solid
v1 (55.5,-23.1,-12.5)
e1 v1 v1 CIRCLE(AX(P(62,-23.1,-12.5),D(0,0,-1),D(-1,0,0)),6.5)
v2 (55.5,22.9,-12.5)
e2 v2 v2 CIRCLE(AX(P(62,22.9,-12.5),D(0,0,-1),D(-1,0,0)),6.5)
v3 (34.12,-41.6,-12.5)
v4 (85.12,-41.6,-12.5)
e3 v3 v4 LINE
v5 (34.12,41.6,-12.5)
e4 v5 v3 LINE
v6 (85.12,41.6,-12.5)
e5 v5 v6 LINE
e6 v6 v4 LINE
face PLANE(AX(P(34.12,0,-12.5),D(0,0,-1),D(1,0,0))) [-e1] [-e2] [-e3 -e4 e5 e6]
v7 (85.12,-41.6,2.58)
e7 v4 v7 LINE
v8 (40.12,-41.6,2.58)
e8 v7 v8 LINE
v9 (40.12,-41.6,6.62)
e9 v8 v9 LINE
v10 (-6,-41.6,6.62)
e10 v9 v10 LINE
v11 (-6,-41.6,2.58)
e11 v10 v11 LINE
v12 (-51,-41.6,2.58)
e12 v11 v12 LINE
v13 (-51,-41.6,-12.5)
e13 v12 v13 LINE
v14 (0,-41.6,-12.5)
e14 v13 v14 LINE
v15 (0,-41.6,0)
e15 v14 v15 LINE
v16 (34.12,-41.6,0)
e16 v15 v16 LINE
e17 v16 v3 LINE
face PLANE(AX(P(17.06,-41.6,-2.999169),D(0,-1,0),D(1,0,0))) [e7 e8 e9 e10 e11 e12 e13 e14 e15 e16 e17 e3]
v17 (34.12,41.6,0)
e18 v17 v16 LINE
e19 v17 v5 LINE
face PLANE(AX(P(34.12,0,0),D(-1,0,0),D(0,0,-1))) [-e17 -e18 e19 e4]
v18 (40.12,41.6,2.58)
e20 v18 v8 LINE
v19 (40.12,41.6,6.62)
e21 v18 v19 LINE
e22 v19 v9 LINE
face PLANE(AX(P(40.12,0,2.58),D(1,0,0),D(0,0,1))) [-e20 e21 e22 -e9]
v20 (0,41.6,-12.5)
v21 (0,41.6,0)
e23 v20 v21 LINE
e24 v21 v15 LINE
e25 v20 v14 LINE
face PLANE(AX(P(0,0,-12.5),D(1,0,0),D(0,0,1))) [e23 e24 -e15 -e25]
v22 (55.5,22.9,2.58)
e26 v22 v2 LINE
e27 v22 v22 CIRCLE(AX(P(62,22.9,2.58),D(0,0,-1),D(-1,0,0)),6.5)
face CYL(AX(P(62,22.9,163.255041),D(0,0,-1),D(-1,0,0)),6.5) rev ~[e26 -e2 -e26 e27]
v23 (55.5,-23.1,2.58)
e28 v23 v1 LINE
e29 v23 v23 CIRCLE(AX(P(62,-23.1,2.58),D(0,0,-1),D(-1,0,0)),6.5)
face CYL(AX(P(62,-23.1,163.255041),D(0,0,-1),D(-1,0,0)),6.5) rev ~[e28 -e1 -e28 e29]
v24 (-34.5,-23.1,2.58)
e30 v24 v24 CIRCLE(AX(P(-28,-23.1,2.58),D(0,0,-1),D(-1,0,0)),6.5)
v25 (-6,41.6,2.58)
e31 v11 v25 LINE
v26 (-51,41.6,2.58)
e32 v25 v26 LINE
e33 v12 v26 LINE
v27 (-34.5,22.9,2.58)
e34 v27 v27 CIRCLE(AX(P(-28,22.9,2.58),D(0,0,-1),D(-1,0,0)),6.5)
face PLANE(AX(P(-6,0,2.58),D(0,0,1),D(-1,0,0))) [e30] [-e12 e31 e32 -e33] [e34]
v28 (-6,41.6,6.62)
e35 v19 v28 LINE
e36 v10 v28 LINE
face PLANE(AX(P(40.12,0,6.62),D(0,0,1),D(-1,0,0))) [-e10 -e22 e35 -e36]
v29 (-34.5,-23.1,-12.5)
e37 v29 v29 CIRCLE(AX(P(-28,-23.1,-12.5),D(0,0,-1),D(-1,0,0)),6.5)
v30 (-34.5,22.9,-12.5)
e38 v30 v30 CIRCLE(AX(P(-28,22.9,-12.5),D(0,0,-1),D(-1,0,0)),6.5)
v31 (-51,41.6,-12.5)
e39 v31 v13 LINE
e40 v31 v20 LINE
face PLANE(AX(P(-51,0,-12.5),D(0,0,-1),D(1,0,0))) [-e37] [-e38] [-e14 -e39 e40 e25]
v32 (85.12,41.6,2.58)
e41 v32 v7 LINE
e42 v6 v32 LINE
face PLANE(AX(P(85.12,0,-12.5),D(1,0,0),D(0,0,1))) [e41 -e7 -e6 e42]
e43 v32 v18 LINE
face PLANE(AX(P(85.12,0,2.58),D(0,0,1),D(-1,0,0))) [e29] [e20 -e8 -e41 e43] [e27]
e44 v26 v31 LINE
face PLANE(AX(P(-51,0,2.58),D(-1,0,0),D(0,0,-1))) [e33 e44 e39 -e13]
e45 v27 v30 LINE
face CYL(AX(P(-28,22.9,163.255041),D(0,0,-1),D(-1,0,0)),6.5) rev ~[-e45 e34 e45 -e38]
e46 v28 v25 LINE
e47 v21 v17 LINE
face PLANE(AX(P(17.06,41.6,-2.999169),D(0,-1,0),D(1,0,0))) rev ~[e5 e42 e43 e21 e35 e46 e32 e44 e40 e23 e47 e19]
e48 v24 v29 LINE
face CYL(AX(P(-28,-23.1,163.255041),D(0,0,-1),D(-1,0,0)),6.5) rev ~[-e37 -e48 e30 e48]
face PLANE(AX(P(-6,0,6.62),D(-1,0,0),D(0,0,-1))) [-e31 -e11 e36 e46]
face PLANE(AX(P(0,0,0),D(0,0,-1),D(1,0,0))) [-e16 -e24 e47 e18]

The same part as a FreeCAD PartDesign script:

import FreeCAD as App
import Part
import Sketcher

doc = App.newDocument("Part")
body = doc.addObject("PartDesign::Body", "Body")

sketch1 = doc.addObject("Sketcher::SketchObject", "Sketch")
body.addObject(sketch1)
sketch1.AttachmentSupport = (doc.XZ_Plane, [""])
sketch1.MapMode = "FlatFace"
sketch1.addGeometry(Part.LineSegment(App.Vector(-51, 2.6, 0), App.Vector(-51, -12.5, 0)), False)
sketch1.addGeometry(Part.LineSegment(App.Vector(-51, -12.5, 0), App.Vector(0, -12.5, 0)), False)
sketch1.addGeometry(Part.LineSegment(App.Vector(0, -12.5, 0), App.Vector(0, 0, 0)), False)
sketch1.addGeometry(Part.LineSegment(App.Vector(0, 0, 0), App.Vector(34.1, 0, 0)), False)
sketch1.addGeometry(Part.LineSegment(App.Vector(34.1, 0, 0), App.Vector(34.1, -12.5, 0)), False)
sketch1.addGeometry(Part.LineSegment(App.Vector(34.1, -12.5, 0), App.Vector(85.1, -12.5, 0)), False)
sketch1.addGeometry(Part.LineSegment(App.Vector(85.1, -12.5, 0), App.Vector(85.1, 2.6, 0)), False)
sketch1.addGeometry(Part.LineSegment(App.Vector(85.1, 2.6, 0), App.Vector(40.1, 2.6, 0)), False)
sketch1.addGeometry(Part.LineSegment(App.Vector(40.1, 2.6, 0), App.Vector(40.1, 6.6, 0)), False)
sketch1.addGeometry(Part.LineSegment(App.Vector(40.1, 6.6, 0), App.Vector(-6, 6.6, 0)), False)
sketch1.addGeometry(Part.LineSegment(App.Vector(-6, 6.6, 0), App.Vector(-6, 2.6, 0)), False)
sketch1.addGeometry(Part.LineSegment(App.Vector(-6, 2.6, 0), App.Vector(-51, 2.6, 0)), False)
sketch1.addConstraint(Sketcher.Constraint("Coincident", 0, 2, 1, 1))
sketch1.addConstraint(Sketcher.Constraint("Coincident", 1, 2, 2, 1))
sketch1.addConstraint(Sketcher.Constraint("Coincident", 2, 2, 3, 1))
sketch1.addConstraint(Sketcher.Constraint("Coincident", 3, 2, 4, 1))
sketch1.addConstraint(Sketcher.Constraint("Coincident", 4, 2, 5, 1))
sketch1.addConstraint(Sketcher.Constraint("Coincident", 5, 2, 6, 1))
sketch1.addConstraint(Sketcher.Constraint("Coincident", 6, 2, 7, 1))
sketch1.addConstraint(Sketcher.Constraint("Coincident", 7, 2, 8, 1))
sketch1.addConstraint(Sketcher.Constraint("Coincident", 8, 2, 9, 1))
sketch1.addConstraint(Sketcher.Constraint("Coincident", 9, 2, 10, 1))
sketch1.addConstraint(Sketcher.Constraint("Coincident", 10, 2, 11, 1))
sketch1.addConstraint(Sketcher.Constraint("Coincident", 11, 2, 0, 1))
sketch1.addConstraint(Sketcher.Constraint("Vertical", 0))
sketch1.addConstraint(Sketcher.Constraint("Horizontal", 1))
sketch1.addConstraint(Sketcher.Constraint("Vertical", 2))
sketch1.addConstraint(Sketcher.Constraint("Horizontal", 3))
sketch1.addConstraint(Sketcher.Constraint("Vertical", 4))
sketch1.addConstraint(Sketcher.Constraint("Horizontal", 5))
sketch1.addConstraint(Sketcher.Constraint("Vertical", 6))
sketch1.addConstraint(Sketcher.Constraint("Horizontal", 7))
sketch1.addConstraint(Sketcher.Constraint("Vertical", 8))
sketch1.addConstraint(Sketcher.Constraint("Horizontal", 9))
sketch1.addConstraint(Sketcher.Constraint("Vertical", 10))
sketch1.addConstraint(Sketcher.Constraint("Horizontal", 11))
sketch1.addConstraint(Sketcher.Constraint("Coincident", 2, 2, -1, 1))
sketch1.addConstraint(Sketcher.Constraint("Horizontal", 1, 2, 4, 2))
sketch1.addConstraint(Sketcher.Constraint("Horizontal", 7, 2, 10, 2))
sketch1.addConstraint(Sketcher.Constraint("Equal", 1, 5))
sketch1.addConstraint(Sketcher.Constraint("Equal", 7, 11))
sketch1.addConstraint(Sketcher.Constraint("DistanceX", 1, 1, 1, 2, 51.0))
sketch1.addConstraint(Sketcher.Constraint("DistanceX", 7, 2, 7, 1, 45.0))
sketch1.addConstraint(Sketcher.Constraint("DistanceY", 2, 1, 2, 2, 12.5))
sketch1.addConstraint(Sketcher.Constraint("DistanceX", 3, 1, 3, 2, 34.12))
sketch1.addConstraint(Sketcher.Constraint("DistanceY", 0, 2, 0, 1, 15.08))
sketch1.addConstraint(Sketcher.Constraint("DistanceY", 8, 1, 8, 2, 4.04))
pad1 = doc.addObject("PartDesign::Pad", "Pad")
body.addObject(pad1)
pad1.Profile = sketch1
pad1.Length = 83.2
pad1.Midplane = True

sketch2 = doc.addObject("Sketcher::SketchObject", "Sketch001")
body.addObject(sketch2)
sketch2.AttachmentSupport = (doc.XY_Plane, [""])
sketch2.MapMode = "FlatFace"
sketch2.AttachmentOffset = App.Placement(App.Vector(0, 0, 2.58), App.Rotation())
sketch2.addGeometry(Part.Circle(App.Vector(-28, -23, 0), App.Vector(0, 0, 1), 6), False)
sketch2.addGeometry(Part.Circle(App.Vector(-28, 23, 0), App.Vector(0, 0, 1), 6), False)
sketch2.addGeometry(Part.Circle(App.Vector(62, 23, 0), App.Vector(0, 0, 1), 6), False)
sketch2.addGeometry(Part.Circle(App.Vector(62, -23, 0), App.Vector(0, 0, 1), 6), False)
sketch2.addConstraint(Sketcher.Constraint("Equal", 0, 1))
sketch2.addConstraint(Sketcher.Constraint("Equal", 1, 2))
sketch2.addConstraint(Sketcher.Constraint("Equal", 2, 3))
sketch2.addConstraint(Sketcher.Constraint("Horizontal", 1, 3, 2, 3))
sketch2.addConstraint(Sketcher.Constraint("Horizontal", 0, 3, 3, 3))
sketch2.addConstraint(Sketcher.Constraint("Vertical", 0, 3, 1, 3))
sketch2.addConstraint(Sketcher.Constraint("Vertical", 2, 3, 3, 3))
sketch2.addConstraint(Sketcher.Constraint("Diameter", 0, 13.0))
sketch2.addConstraint(Sketcher.Constraint("DistanceX", 0, 3, -1, 1, 28.0))
sketch2.addConstraint(Sketcher.Constraint("DistanceX", -1, 1, 2, 3, 62.0))
sketch2.addConstraint(Sketcher.Constraint("DistanceY", 0, 3, 1, 3, 46.0))
sketch2.addConstraint(Sketcher.Constraint("DistanceY", 0, 3, -1, 1, 23.1))
doc.recompute()
hole = doc.addObject("PartDesign::Hole", "Hole")
body.addObject(hole)
hole.Profile = sketch2
hole.ThreadType = "None"
hole.Diameter = 13
hole.DepthType = "ThroughAll"

doc.recompute()
